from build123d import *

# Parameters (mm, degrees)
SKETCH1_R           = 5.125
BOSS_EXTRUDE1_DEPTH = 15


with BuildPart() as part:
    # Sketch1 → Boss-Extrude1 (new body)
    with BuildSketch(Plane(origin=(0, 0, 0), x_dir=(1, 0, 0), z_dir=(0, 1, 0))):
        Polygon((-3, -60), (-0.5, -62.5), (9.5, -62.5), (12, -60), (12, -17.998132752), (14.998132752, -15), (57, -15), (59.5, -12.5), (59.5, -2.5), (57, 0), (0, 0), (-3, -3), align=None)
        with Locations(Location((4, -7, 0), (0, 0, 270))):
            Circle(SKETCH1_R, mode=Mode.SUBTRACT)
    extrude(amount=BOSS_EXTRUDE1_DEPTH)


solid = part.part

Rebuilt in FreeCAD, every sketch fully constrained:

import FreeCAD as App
import Part
import Sketcher
from FreeCAD import Vector


def add_polygon(sketch, points):
    """Adds a closed chain of lines whose ends are joined by coincident constraints."""
    first, n = sketch.GeometryCount, len(points)
    for a, b in zip(points, points[1:] + points[:1]):
        sketch.addGeometry(Part.LineSegment(App.Vector(*a, 0), App.Vector(*b, 0)), False)
    for i in range(n):
        sketch.addConstraint(Sketcher.Constraint("Coincident", first + i, 2, first + (i + 1) % n, 1))

doc = App.newDocument("Part")
body = doc.addObject("PartDesign::Body", "Body")

sketch1 = body.newObject("Sketcher::SketchObject", "Sketch")
sketch1.AttachmentSupport = (doc.getObject("XZ_Plane"), [""])
sketch1.MapMode = "FlatFace"
add_polygon(sketch1, [(-3, 60), (-0.5, 62.5), (9.5, 62.5), (12, 60), (12, 18), (15, 15), (57, 15), (59.5, 12.5), (59.5, 2.5), (57, 0), (0, 0), (-3, 3)])
sketch1.addGeometry(Part.Circle(Vector(4, 7, 0), Vector(0, 0, 1), 5.1), False)
sketch1.addConstraint(Sketcher.Constraint("Horizontal", 1))
sketch1.addConstraint(Sketcher.Constraint("Vertical", 3))
sketch1.addConstraint(Sketcher.Constraint("Horizontal", 5))
sketch1.addConstraint(Sketcher.Constraint("Vertical", 7))
sketch1.addConstraint(Sketcher.Constraint("Horizontal", 9))
sketch1.addConstraint(Sketcher.Constraint("Vertical", 11))
sketch1.addConstraint(Sketcher.Constraint("Coincident", 9, 2, -1, 1))
sketch1.addConstraint(Sketcher.Constraint("Perpendicular", 0, 2))
sketch1.addConstraint(Sketcher.Constraint("Parallel", 2, 4))
sketch1.addConstraint(Sketcher.Constraint("Parallel", 4, 6))
sketch1.addConstraint(Sketcher.Constraint("Perpendicular", 6, 8))
sketch1.addConstraint(Sketcher.Constraint("Perpendicular", 8, 10))
sketch1.addConstraint(Sketcher.Constraint("Horizontal", 2, 2, 11, 2))
sketch1.addConstraint(Sketcher.Constraint("Vertical", 5, 2, 8, 2))
sketch1.addConstraint(Sketcher.Constraint("Equal", 5, 3))
sketch1.addConstraint(Sketcher.Constraint("Equal", 1, 7))
sketch1.addConstraint(Sketcher.Constraint("Equal", 9, 11))
sketch1.addConstraint(Sketcher.Constraint("Equal", 0, 2))
sketch1.addConstraint(Sketcher.Constraint("Diameter", 12, 10.25))
sketch1.addConstraint(Sketcher.Constraint("DistanceX", 1, 1, 1, 2, 10.0))
sketch1.addConstraint(Sketcher.Constraint("DistanceX", 9, 2, 9, 1, 57.0))
sketch1.addConstraint(Sketcher.Constraint("DistanceX", -1, 1, 12, 3, 4.0))
sketch1.addConstraint(Sketcher.Constraint("DistanceY", -1, 1, 12, 3, 7.0))
sketch1.addConstraint(Sketcher.Constraint("DistanceX", -1, 1, 2, 2, 12.0))
sketch1.addConstraint(Sketcher.Constraint("DistanceY", -1, 1, 2, 2, 60.0))
sketch1.addConstraint(Sketcher.Constraint("Distance", 4, 4.24))
pad1 = body.newObject("PartDesign::Pad", "Pad")
pad1.Profile = sketch1
pad1.Length = 15
pad1.Reversed = True

doc.recompute()
